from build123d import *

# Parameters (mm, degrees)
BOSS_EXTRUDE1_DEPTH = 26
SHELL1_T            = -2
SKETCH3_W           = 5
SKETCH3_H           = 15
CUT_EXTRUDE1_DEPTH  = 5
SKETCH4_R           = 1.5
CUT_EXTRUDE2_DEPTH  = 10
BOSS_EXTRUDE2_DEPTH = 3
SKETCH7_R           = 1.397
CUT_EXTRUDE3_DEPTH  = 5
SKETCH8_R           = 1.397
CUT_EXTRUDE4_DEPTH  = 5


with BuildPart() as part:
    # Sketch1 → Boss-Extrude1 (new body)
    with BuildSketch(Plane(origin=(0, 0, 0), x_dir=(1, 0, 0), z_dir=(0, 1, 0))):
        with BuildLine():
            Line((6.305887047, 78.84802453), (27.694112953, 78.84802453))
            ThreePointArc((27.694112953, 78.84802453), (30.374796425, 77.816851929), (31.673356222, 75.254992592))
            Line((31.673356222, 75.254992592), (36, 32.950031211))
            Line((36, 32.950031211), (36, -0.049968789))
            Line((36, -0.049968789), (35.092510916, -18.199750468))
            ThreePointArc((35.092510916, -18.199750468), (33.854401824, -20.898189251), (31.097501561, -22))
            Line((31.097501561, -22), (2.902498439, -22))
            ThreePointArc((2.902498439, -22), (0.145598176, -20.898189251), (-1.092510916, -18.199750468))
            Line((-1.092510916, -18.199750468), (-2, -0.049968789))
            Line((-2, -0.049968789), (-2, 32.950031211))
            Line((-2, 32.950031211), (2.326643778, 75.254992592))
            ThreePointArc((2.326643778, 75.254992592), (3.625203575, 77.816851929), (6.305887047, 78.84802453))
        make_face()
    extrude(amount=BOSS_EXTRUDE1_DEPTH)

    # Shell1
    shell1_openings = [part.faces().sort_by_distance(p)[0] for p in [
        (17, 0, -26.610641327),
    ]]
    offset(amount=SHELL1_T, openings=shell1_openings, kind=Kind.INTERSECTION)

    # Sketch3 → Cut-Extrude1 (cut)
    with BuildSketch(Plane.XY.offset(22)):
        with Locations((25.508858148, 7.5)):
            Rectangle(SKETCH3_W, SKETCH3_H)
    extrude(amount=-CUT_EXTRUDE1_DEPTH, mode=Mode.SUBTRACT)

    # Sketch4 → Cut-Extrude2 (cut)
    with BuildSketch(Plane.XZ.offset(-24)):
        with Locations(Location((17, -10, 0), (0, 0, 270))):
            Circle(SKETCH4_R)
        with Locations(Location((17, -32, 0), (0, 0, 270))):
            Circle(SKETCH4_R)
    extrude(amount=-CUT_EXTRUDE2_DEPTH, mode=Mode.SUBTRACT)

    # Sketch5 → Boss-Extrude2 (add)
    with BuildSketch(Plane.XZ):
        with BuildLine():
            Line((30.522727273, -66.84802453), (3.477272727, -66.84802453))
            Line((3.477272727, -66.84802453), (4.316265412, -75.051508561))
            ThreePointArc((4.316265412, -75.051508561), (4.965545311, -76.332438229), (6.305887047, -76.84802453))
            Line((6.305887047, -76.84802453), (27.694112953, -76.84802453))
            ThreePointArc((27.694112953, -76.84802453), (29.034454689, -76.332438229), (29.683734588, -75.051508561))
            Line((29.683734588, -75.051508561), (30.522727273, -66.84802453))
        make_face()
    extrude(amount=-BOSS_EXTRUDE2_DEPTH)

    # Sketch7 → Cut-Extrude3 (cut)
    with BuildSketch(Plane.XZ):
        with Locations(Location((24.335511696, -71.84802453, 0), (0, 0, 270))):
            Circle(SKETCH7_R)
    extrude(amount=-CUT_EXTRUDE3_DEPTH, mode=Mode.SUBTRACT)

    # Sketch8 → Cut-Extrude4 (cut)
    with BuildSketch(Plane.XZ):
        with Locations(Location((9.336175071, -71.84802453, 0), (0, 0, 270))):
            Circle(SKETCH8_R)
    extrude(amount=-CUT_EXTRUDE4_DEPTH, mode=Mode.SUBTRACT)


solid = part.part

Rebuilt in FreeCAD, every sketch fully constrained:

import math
import FreeCAD as App
import Part
import Sketcher

V = App.Vector


def faces_at(feature, points):
    """Names of the faces that lie closest to the given points."""
    faces = feature.Shape.Faces
    near = lambda p: min(range(len(faces)), key=lambda i: faces[i].distToShape(Part.Vertex(*p))[0])
    return sorted({f"Face{near(p) + 1}" for p in points})

doc = App.newDocument("Part")
body = doc.addObject("PartDesign::Body", "Body")

# Sketch on XZ plane
sketch1 = doc.addObject("Sketcher::SketchObject", "Sketch")
body.addObject(sketch1)
sketch1.AttachmentSupport = (doc.XZ_Plane, [""])
sketch1.MapMode = "FlatFace"
sketch1.addGeometry([
    Part.LineSegment(V(27.694113, -78.848025, 0), V(6.305887, -78.848025, 0)),  # 0
    Part.ArcOfCircle(Part.Circle(V(6.305887, -74.848025, 0), V(0, 0, 1), 4), math.radians(-174.160508), math.radians(-90)),  # 1
    Part.LineSegment(V(2.326644, -75.254993, 0), V(-2, -32.950031, 0)),  # 2
    Part.LineSegment(V(-2, -32.950031, 0), V(-2, 0.049969, 0)),  # 3
    Part.LineSegment(V(-2, 0.049969, 0), V(-1.092511, 18.19975, 0)),  # 4
    Part.ArcOfCircle(Part.Circle(V(2.902498, 18, 0), V(0, 0, 1), 4), math.radians(90), math.radians(177.137595)),  # 5
    Part.LineSegment(V(2.902498, 22, 0), V(31.097502, 22, 0)),  # 6
    Part.ArcOfCircle(Part.Circle(V(31.097502, 18, 0), V(0, 0, 1), 4), math.radians(2.862405), math.radians(90)),  # 7
    Part.LineSegment(V(35.092511, 18.19975, 0), V(36, 0.049969, 0)),  # 8
    Part.LineSegment(V(36, 0.049969, 0), V(36, -32.950031, 0)),  # 9
    Part.LineSegment(V(36, -32.950031, 0), V(31.673356, -75.254993, 0)),  # 10
    Part.ArcOfCircle(Part.Circle(V(27.694113, -74.848025, 0), V(0, 0, 1), 4), math.radians(-90), math.radians(-5.839492)),  # 11
], False)
sketch1.addConstraint([
    Sketcher.Constraint("Tangent", 0, 2, 1, 2),
    Sketcher.Constraint("Tangent", 1, 1, 2, 1),
    Sketcher.Constraint("Coincident", 2, 2, 3, 1),
    Sketcher.Constraint("Coincident", 3, 2, 4, 1),
    Sketcher.Constraint("Tangent", 4, 2, 5, 2),
    Sketcher.Constraint("Tangent", 5, 1, 6, 1),
    Sketcher.Constraint("Tangent", 6, 2, 7, 2),
    Sketcher.Constraint("Tangent", 7, 1, 8, 1),
    Sketcher.Constraint("Coincident", 8, 2, 9, 1),
    Sketcher.Constraint("Coincident", 9, 2, 10, 1),
    Sketcher.Constraint("Tangent", 10, 2, 11, 2),
    Sketcher.Constraint("Tangent", 11, 1, 0, 1),
    Sketcher.Constraint("Horizontal", 0),
    Sketcher.Constraint("Vertical", 3),
    Sketcher.Constraint("Horizontal", 6),
    Sketcher.Constraint("Vertical", 9),
    Sketcher.Constraint("Equal", 1, 5),
    Sketcher.Constraint("Equal", 5, 7),
    Sketcher.Constraint("Equal", 7, 11),
    Sketcher.Constraint("Horizontal", 4, 2, 7, 1),
    Sketcher.Constraint("Horizontal", 3, 2, 8, 2),
    Sketcher.Constraint("Horizontal", 2, 2, 9, 2),
    Sketcher.Constraint("Horizontal", 1, 1, 10, 2),
    Sketcher.Constraint("Radius", 1, 4.0),
    Sketcher.Constraint("DistanceY", 3, 1, 3, 2, 33.0),
    Sketcher.Constraint("DistanceY", -1, 1, 5, 3, 18.0),
    Sketcher.Constraint("DistanceX", 2, 2, -1, 1, 2.0),
    Sketcher.Constraint("DistanceX", -1, 1, 8, 2, 36.0),
    Sketcher.Constraint("DistanceX", -1, 1, 5, 3, 2.902498),
    Sketcher.Constraint("DistanceX", 0, 2, 0, 1, 21.388226),
    Sketcher.Constraint("DistanceY", 2, 2, -1, 1, 32.950031),
    Sketcher.Constraint("DistanceY", 1, 1, 2, 2, 42.304961),
])
pad1 = doc.addObject("PartDesign::Pad", "Pad")
body.addObject(pad1)
pad1.Profile = sketch1
pad1.Length = 26
pad1.Reversed = True
doc.recompute()

thickness = doc.addObject("PartDesign::Thickness", "Thickness")
body.addObject(thickness)
thickness.Base = (pad1, faces_at(pad1, [(17, 0, -28.424)]))
thickness.Value = 2
thickness.Reversed = True
thickness.Join = "Intersection"

# Sketch on XY plane
sketch2 = doc.addObject("Sketcher::SketchObject", "Sketch001")
body.addObject(sketch2)
sketch2.AttachmentSupport = (doc.XY_Plane, [""])
sketch2.MapMode = "FlatFace"
sketch2.AttachmentOffset = App.Placement(V(0, 0, 22), App.Rotation())
sketch2.addGeometry([
    Part.LineSegment(V(23.008858, 15, 0), V(23.008858, 0, 0)),
    Part.LineSegment(V(23.008858, 0, 0), V(28.008858, 0, 0)),
    Part.LineSegment(V(28.008858, 0, 0), V(28.008858, 15, 0)),
    Part.LineSegment(V(28.008858, 15, 0), V(23.008858, 15, 0)),
], False)
sketch2.addConstraint([
    Sketcher.Constraint("Coincident", 0, 2, 1, 1),
    Sketcher.Constraint("Coincident", 1, 2, 2, 1),
    Sketcher.Constraint("Coincident", 2, 2, 3, 1),
    Sketcher.Constraint("Coincident", 3, 2, 0, 1),
    Sketcher.Constraint("Vertical", 0),
    Sketcher.Constraint("Horizontal", 1),
    Sketcher.Constraint("Vertical", 2),
    Sketcher.Constraint("Horizontal", 3),
    Sketcher.Constraint("PointOnObject", 0, 2, -1),
    Sketcher.Constraint("DistanceX", 1, 1, 1, 2, 5.0),
    Sketcher.Constraint("DistanceY", 0, 2, 0, 1, 15.0),
    Sketcher.Constraint("DistanceX", -1, 1, 0, 2, 23.008858),
])
pocket1 = doc.addObject("PartDesign::Pocket", "Pocket")
body.addObject(pocket1)
pocket1.Profile = sketch2
pocket1.Length = 5

# Sketch on XZ plane
sketch3 = doc.addObject("Sketcher::SketchObject", "Sketch002")
body.addObject(sketch3)
sketch3.AttachmentSupport = (doc.XZ_Plane, [""])
sketch3.MapMode = "FlatFace"
sketch3.AttachmentOffset = App.Placement(V(0, 0, -24), App.Rotation())
sketch3.addGeometry([
    Part.Circle(V(17, -10, 0), V(0, 0, 1), 1.5),
    Part.Circle(V(17, -32, 0), V(0, 0, 1), 1.5),
], False)
sketch3.addConstraint([
    Sketcher.Constraint("Equal", 0, 1),
    Sketcher.Constraint("Vertical", 0, 3, 1, 3),
    Sketcher.Constraint("Diameter", 0, 3.0),
    Sketcher.Constraint("DistanceX", -1, 1, 0, 3, 17.0),
    Sketcher.Constraint("DistanceY", 0, 3, -1, 1, 10.0),
    Sketcher.Constraint("DistanceY", 1, 3, -1, 1, 32.0),
])
pocket2 = doc.addObject("PartDesign::Pocket", "Pocket001")
body.addObject(pocket2)
pocket2.Profile = sketch3
pocket2.Length = 10

# Sketch on XZ plane
sketch4 = doc.addObject("Sketcher::SketchObject", "Sketch003")
body.addObject(sketch4)
sketch4.AttachmentSupport = (doc.XZ_Plane, [""])
sketch4.MapMode = "FlatFace"
sketch4.addGeometry([
    Part.LineSegment(V(30.522727, -66.848025, 0), V(3.477273, -66.848025, 0)),  # 0
    Part.LineSegment(V(3.477273, -66.848025, 0), V(4.316265, -75.051509, 0)),  # 1
    Part.ArcOfCircle(Part.Circle(V(6.305887, -74.848025, 0), V(0, 0, 1), 2), math.radians(-174.160508), math.radians(-90)),  # 2
    Part.LineSegment(V(6.305887, -76.848025, 0), V(27.694113, -76.848025, 0)),  # 3
    Part.ArcOfCircle(Part.Circle(V(27.694113, -74.848025, 0), V(0, 0, 1), 2), math.radians(-90), math.radians(-5.839492)),  # 4
    Part.LineSegment(V(29.683735, -75.051509, 0), V(30.522727, -66.848025, 0)),  # 5
], False)
sketch4.addConstraint([
    Sketcher.Constraint("Coincident", 0, 2, 1, 1),
    Sketcher.Constraint("Tangent", 1, 2, 2, 1),
    Sketcher.Constraint("Tangent", 2, 2, 3, 1),
    Sketcher.Constraint("Tangent", 3, 2, 4, 1),
    Sketcher.Constraint("Tangent", 4, 2, 5, 1),
    Sketcher.Constraint("Coincident", 5, 2, 0, 1),
    Sketcher.Constraint("Horizontal", 0),
    Sketcher.Constraint("Horizontal", 3),
    Sketcher.Constraint("Equal", 2, 4),
    Sketcher.Constraint("Horizontal", 1, 2, 4, 2),
    Sketcher.Constraint("Radius", 2, 2.0),
    Sketcher.Constraint("DistanceY", 2, 3, 0, 2, 8.0),
    Sketcher.Constraint("DistanceX", 0, 2, 0, 1, 27.045455),
    Sketcher.Constraint("DistanceX", 3, 1, 3, 2, 21.388226),
    Sketcher.Constraint("DistanceY", 1, 2, -1, 1, 75.051509),
    Sketcher.Constraint("DistanceX", -1, 1, 2, 3, 6.305887),
])
pad2 = doc.addObject("PartDesign::Pad", "Pad001")
body.addObject(pad2)
pad2.Profile = sketch4
pad2.Length = 3
pad2.Reversed = True

# Sketch on XZ plane
sketch5 = doc.addObject("Sketcher::SketchObject", "Sketch004")
body.addObject(sketch5)
sketch5.AttachmentSupport = (doc.XZ_Plane, [""])
sketch5.MapMode = "FlatFace"
sketch5.addGeometry(Part.Circle(V(24.335512, -71.848025, 0), V(0, 0, 1), 1.397), False)
sketch5.addConstraint([
    Sketcher.Constraint("Diameter", 0, 2.794),
    Sketcher.Constraint("DistanceX", -1, 1, 0, 3, 24.335512),
    Sketcher.Constraint("DistanceY", 0, 3, -1, 1, 71.848025),
])
pocket3 = doc.addObject("PartDesign::Pocket", "Pocket002")
body.addObject(pocket3)
pocket3.Profile = sketch5
pocket3.Length = 5

# Sketch on XZ plane
sketch6 = doc.addObject("Sketcher::SketchObject", "Sketch005")
body.addObject(sketch6)
sketch6.AttachmentSupport = (doc.XZ_Plane, [""])
sketch6.MapMode = "FlatFace"
sketch6.addGeometry(Part.Circle(V(9.336175, -71.848025, 0), V(0, 0, 1), 1.397), False)
sketch6.addConstraint([
    Sketcher.Constraint("Diameter", 0, 2.794),
    Sketcher.Constraint("DistanceX", -1, 1, 0, 3, 9.336175),
    Sketcher.Constraint("DistanceY", 0, 3, -1, 1, 71.848025),
])
pocket4 = doc.addObject("PartDesign::Pocket", "Pocket003")
body.addObject(pocket4)
pocket4.Profile = sketch6
pocket4.Length = 5

doc.recompute()
